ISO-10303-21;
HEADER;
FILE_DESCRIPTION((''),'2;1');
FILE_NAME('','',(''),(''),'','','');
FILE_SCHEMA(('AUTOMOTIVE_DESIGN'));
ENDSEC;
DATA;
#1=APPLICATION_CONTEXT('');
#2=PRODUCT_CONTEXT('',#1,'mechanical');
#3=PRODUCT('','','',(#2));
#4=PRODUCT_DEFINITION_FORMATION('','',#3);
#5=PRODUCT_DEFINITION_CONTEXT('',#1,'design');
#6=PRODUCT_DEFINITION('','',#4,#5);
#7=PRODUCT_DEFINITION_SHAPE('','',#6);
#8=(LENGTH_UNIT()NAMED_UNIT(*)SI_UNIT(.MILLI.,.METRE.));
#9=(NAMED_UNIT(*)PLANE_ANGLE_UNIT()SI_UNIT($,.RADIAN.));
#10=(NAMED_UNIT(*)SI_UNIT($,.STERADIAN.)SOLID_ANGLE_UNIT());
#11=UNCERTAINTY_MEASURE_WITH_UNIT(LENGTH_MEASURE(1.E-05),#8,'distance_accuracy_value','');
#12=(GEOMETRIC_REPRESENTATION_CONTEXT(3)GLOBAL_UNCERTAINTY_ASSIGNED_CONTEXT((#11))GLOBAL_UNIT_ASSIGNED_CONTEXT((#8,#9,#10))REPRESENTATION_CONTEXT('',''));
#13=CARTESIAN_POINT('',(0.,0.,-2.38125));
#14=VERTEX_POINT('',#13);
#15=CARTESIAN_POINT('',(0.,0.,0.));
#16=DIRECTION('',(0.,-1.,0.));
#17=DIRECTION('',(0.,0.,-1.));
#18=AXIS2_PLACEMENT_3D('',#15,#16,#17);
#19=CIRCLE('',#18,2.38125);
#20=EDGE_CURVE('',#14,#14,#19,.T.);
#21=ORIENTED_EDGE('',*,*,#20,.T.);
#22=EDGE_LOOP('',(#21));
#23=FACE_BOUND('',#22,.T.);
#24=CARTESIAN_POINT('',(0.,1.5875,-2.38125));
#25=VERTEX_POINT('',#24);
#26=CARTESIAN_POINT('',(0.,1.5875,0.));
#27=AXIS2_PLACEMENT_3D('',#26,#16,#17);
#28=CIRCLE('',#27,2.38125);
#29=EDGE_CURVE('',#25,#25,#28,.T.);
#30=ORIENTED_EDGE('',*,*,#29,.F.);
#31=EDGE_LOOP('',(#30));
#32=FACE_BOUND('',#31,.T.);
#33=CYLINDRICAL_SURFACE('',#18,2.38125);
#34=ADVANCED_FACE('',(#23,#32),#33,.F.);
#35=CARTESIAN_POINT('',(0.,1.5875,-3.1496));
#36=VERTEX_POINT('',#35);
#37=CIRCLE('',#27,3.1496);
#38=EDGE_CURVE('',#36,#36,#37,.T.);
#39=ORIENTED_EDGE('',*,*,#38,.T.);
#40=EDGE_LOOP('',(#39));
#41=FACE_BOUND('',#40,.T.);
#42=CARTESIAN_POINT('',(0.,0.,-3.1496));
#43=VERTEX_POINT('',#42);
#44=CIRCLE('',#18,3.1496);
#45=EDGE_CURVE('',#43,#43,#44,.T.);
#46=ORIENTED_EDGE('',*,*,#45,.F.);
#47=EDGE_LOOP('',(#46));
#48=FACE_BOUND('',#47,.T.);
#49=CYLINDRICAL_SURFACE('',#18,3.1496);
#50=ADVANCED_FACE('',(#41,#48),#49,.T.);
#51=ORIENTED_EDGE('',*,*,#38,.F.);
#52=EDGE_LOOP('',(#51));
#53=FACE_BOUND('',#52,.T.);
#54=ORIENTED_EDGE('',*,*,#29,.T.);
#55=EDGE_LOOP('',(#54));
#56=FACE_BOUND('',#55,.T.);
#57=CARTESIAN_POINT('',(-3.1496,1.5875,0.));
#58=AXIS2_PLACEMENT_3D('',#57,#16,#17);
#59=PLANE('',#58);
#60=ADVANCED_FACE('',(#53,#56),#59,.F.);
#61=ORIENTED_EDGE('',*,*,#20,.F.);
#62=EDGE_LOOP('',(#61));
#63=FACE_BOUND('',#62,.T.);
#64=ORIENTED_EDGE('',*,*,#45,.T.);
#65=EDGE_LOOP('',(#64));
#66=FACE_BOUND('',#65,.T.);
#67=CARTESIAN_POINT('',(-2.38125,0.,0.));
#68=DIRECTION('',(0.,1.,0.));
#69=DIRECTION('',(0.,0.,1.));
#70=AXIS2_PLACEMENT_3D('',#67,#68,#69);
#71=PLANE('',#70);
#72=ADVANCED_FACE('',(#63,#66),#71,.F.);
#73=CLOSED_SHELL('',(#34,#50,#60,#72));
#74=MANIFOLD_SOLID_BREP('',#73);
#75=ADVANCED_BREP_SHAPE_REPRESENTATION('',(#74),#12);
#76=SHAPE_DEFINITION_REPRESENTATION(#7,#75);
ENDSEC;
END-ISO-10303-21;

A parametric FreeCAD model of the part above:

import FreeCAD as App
import Part
import Sketcher

V = App.Vector
Q = App.Units.Quantity

doc = App.newDocument("Part")
body = doc.addObject("PartDesign::Body", "Body")

# Sketch on XY plane
sketch1 = body.newObject("Sketcher::SketchObject", "Sketch")
sketch1.AttachmentSupport = (doc.getObject("XY_Plane"), [""])
sketch1.MapMode = "FlatFace"
sketch1.addGeometry([
    Part.LineSegment(V(-3.1496, 1.5875, 0), V(-3.1496, 0, 0)),
    Part.LineSegment(V(-3.1496, 0, 0), V(-2.38125, 0, 0)),
    Part.LineSegment(V(-2.38125, 0, 0), V(-2.38125, 1.5875, 0)),
    Part.LineSegment(V(-2.38125, 1.5875, 0), V(-3.1496, 1.5875, 0)),
], False)
sketch1.addConstraint([
    Sketcher.Constraint("Coincident", 0, 2, 1, 1),
    Sketcher.Constraint("Coincident", 1, 2, 2, 1),
    Sketcher.Constraint("Coincident", 2, 2, 3, 1),
    Sketcher.Constraint("Coincident", 3, 2, 0, 1),
    Sketcher.Constraint("Vertical", 0),
    Sketcher.Constraint("Horizontal", 1),
    Sketcher.Constraint("Vertical", 2),
    Sketcher.Constraint("Horizontal", 3),
    Sketcher.Constraint("PointOnObject", 0, 2, -1),
    Sketcher.Constraint("DistanceY", 0, 2, 0, 1, Q("0.0625 in")),
    Sketcher.Constraint("DistanceX", 0, 2, -1, 1, Q("0.124 in")),
    Sketcher.Constraint("DistanceX", 1, 2, -1, 1, Q("0.09375 in")),
])
revolution = body.newObject("PartDesign::Revolution", "Revolution")
revolution.Profile = sketch1
revolution.ReferenceAxis = (sketch1, ["V_Axis"])
revolution.Angle = 360

doc.recompute()
